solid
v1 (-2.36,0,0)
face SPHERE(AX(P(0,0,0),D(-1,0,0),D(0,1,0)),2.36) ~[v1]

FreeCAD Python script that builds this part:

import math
import FreeCAD as App
import Part
import Sketcher

V = App.Vector

doc = App.newDocument("Part")
params = doc.addObject("Spreadsheet::Sheet", "Params")
for row, (alias, value) in enumerate([
    ("sketch1_radius", "2.36 mm"),
    ("revolution_angle", "360 deg"),
], start=1):
    params.set(f"A{row}", alias)
    params.set(f"B{row}", "=" + value)
    params.setAlias(f"B{row}", alias)

body = doc.addObject("PartDesign::Body", "Body")

# Sketch on XY plane
sketch1 = doc.addObject("Sketcher::SketchObject", "Sketch")
body.addObject(sketch1)
sketch1.AttachmentSupport = (doc.XY_Plane, [""])
sketch1.MapMode = "FlatFace"
sketch1.addGeometry([
    Part.LineSegment(V(-2.36, 0, 0), V(2.36, 0, 0)),
    Part.ArcOfCircle(Part.Circle(V(0, 0, 0), V(0, 0, 1), 2.36), math.radians(0), math.radians(180)),
], False)
sketch1.addConstraint([
    Sketcher.Constraint("Coincident", 0, 1, 1, 2),
    Sketcher.Constraint("Coincident", 1, 1, 0, 2),
    Sketcher.Constraint("Horizontal", 0),
    Sketcher.Constraint("Coincident", 1, 3, -1, 1),
    Sketcher.Constraint("PointOnObject", 0, 1, -1),
    Sketcher.Constraint("Radius", 1, 2.36),
])
sketch1.setExpression("Constraints[5]", "Params.sketch1_radius")
revolution = doc.addObject("PartDesign::Revolution", "Revolution")
body.addObject(revolution)
revolution.Profile = sketch1
revolution.ReferenceAxis = (sketch1, ["H_Axis"])
revolution.setExpression("Angle", "Params.revolution_angle")

doc.recompute()
